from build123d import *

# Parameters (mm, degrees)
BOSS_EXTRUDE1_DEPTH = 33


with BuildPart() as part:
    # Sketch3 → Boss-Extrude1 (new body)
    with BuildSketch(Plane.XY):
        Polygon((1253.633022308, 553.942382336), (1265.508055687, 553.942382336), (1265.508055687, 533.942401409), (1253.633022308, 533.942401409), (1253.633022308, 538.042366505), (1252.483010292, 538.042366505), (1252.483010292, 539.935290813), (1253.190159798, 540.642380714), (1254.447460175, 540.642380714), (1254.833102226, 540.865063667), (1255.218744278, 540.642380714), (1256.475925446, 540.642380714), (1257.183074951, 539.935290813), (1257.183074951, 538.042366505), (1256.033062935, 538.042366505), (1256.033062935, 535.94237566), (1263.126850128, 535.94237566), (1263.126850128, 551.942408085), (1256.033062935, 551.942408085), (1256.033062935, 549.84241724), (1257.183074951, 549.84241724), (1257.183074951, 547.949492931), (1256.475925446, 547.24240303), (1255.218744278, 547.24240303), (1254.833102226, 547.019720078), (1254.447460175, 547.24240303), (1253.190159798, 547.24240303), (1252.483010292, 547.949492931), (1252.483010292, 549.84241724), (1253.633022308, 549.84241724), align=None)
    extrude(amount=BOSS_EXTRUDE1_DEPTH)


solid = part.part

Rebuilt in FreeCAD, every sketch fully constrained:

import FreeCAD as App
import Part
import Sketcher
from FreeCAD import Vector
Q = App.Units.Quantity


def add_polygon(sketch, points):
    """Adds a closed chain of lines whose ends are joined by coincident constraints."""
    first, n = sketch.GeometryCount, len(points)
    for a, b in zip(points, points[1:] + points[:1]):
        sketch.addGeometry(Part.LineSegment(App.Vector(*a, 0), App.Vector(*b, 0)), False)
    for i in range(n):
        sketch.addConstraint(Sketcher.Constraint("Coincident", first + i, 2, first + (i + 1) % n, 1))

doc = App.newDocument("Part")
params = doc.addObject("Spreadsheet::Sheet", "Params")
for row, (alias, value) in enumerate([
    ("pad1_length", "33 mm"),
], start=1):
    params.set(f"A{row}", alias)
    params.set(f"B{row}", "=" + value)
    params.setAlias(f"B{row}", alias)

body = doc.addObject("PartDesign::Body", "Body")

# Sketch on XY plane
sketch1 = body.newObject("Sketcher::SketchObject", "Sketch")
sketch1.AttachmentSupport = (doc.getObject("XY_Plane"), [""])
sketch1.MapMode = "FlatFace"
add_polygon(sketch1, [(1265.508056, 553.942382), (1253.633022, 553.942382), (1253.633022, 549.842417), (1252.48301, 549.842417), (1252.48301, 547.949493), (1253.19016, 547.242403), (1254.44746, 547.242403), (1254.833102, 547.01972), (1255.218744, 547.242403), (1256.475925, 547.242403), (1257.183075, 547.949493), (1257.183075, 549.842417), (1256.033063, 549.842417), (1256.033063, 551.942408), (1263.12685, 551.942408), (1263.12685, 535.942376), (1256.033063, 535.942376), (1256.033063, 538.042367), (1257.183075, 538.042367), (1257.183075, 539.935291), (1256.475925, 540.642381), (1255.218744, 540.642381), (1254.833102, 540.865064), (1254.44746, 540.642381), (1253.19016, 540.642381), (1252.48301, 539.935291), (1252.48301, 538.042367), (1253.633022, 538.042367), (1253.633022, 533.942401), (1265.508056, 533.942401)])  # lines 0-29
sketch1.addConstraint(Sketcher.Constraint("Horizontal", 0))
sketch1.addConstraint(Sketcher.Constraint("Vertical", 1))
sketch1.addConstraint(Sketcher.Constraint("Horizontal", 2))
sketch1.addConstraint(Sketcher.Constraint("Vertical", 3))
sketch1.addConstraint(Sketcher.Constraint("Horizontal", 5))
sketch1.addConstraint(Sketcher.Constraint("Horizontal", 8))
sketch1.addConstraint(Sketcher.Constraint("Vertical", 10))
sketch1.addConstraint(Sketcher.Constraint("Horizontal", 11))
sketch1.addConstraint(Sketcher.Constraint("Vertical", 12))
sketch1.addConstraint(Sketcher.Constraint("Horizontal", 13))
sketch1.addConstraint(Sketcher.Constraint("Vertical", 14))
sketch1.addConstraint(Sketcher.Constraint("Horizontal", 15))
sketch1.addConstraint(Sketcher.Constraint("Vertical", 16))
sketch1.addConstraint(Sketcher.Constraint("Horizontal", 17))
sketch1.addConstraint(Sketcher.Constraint("Vertical", 18))
sketch1.addConstraint(Sketcher.Constraint("Horizontal", 20))
sketch1.addConstraint(Sketcher.Constraint("Horizontal", 23))
sketch1.addConstraint(Sketcher.Constraint("Vertical", 25))
sketch1.addConstraint(Sketcher.Constraint("Horizontal", 26))
sketch1.addConstraint(Sketcher.Constraint("Vertical", 27))
sketch1.addConstraint(Sketcher.Constraint("Horizontal", 28))
sketch1.addConstraint(Sketcher.Constraint("Vertical", 29))
sketch1.addConstraint(Sketcher.Constraint("Parallel", 4, 19))
sketch1.addConstraint(Sketcher.Constraint("Parallel", 6, 21))
sketch1.addConstraint(Sketcher.Constraint("Parallel", 7, 22))
sketch1.addConstraint(Sketcher.Constraint("Parallel", 9, 24))
sketch1.addConstraint(Sketcher.Constraint("Horizontal", 5, 2, 7, 2))
sketch1.addConstraint(Sketcher.Constraint("Horizontal", 3, 2, 9, 2))
sketch1.addConstraint(Sketcher.Constraint("Horizontal", 2, 2, 10, 2))
sketch1.addConstraint(Sketcher.Constraint("Horizontal", 20, 2, 22, 2))
sketch1.addConstraint(Sketcher.Constraint("Horizontal", 18, 2, 24, 2))
sketch1.addConstraint(Sketcher.Constraint("Horizontal", 17, 2, 25, 2))
sketch1.addConstraint(Sketcher.Constraint("Vertical", 12, 2, 15, 2))
sketch1.addConstraint(Sketcher.Constraint("Vertical", 10, 2, 17, 2))
sketch1.addConstraint(Sketcher.Constraint("Vertical", 8, 2, 19, 2))
sketch1.addConstraint(Sketcher.Constraint("Vertical", 7, 2, 20, 2))
sketch1.addConstraint(Sketcher.Constraint("Vertical", 6, 2, 21, 2))
sketch1.addConstraint(Sketcher.Constraint("Vertical", 5, 2, 22, 2))
sketch1.addConstraint(Sketcher.Constraint("Vertical", 4, 2, 23, 2))
sketch1.addConstraint(Sketcher.Constraint("Vertical", 3, 2, 24, 2))
sketch1.addConstraint(Sketcher.Constraint("Vertical", 1, 2, 26, 2))
sketch1.addConstraint(Sketcher.Constraint("Equal", 2, 11))
sketch1.addConstraint(Sketcher.Constraint("Equal", 12, 16))
sketch1.addConstraint(Sketcher.Constraint("Equal", 10, 18))
sketch1.addConstraint(Sketcher.Constraint("Equal", 1, 27))
sketch1.addConstraint(Sketcher.Constraint("DistanceX", 5, 1, 5, 2, Q("1.2573 mm")))
sketch1.addConstraint(Sketcher.Constraint("DistanceX", 8, 1, 8, 2, Q("1.257181 mm")))
sketch1.addConstraint(Sketcher.Constraint("DistanceY", 12, 1, 12, 2, Q("2.099991 mm")))
sketch1.addConstraint(Sketcher.Constraint("DistanceY", 29, 1, 29, 2, Q("19.999981 mm")))
sketch1.addConstraint(Sketcher.Constraint("DistanceY", -1, 1, 27, 2, Q("533.942401 mm")))
sketch1.addConstraint(Sketcher.Constraint("Distance", 4, Q("1.000018 mm")))
sketch1.addConstraint(Sketcher.Constraint("DistanceX", 0, 2, 0, 1, Q("11.875033 mm")))
sketch1.addConstraint(Sketcher.Constraint("DistanceX", 2, 2, 2, 1, Q("1.150012 mm")))
sketch1.addConstraint(Sketcher.Constraint("DistanceX", 13, 1, 13, 2, Q("7.093787 mm")))
sketch1.addConstraint(Sketcher.Constraint("DistanceY", 1, 2, 1, 1, Q("4.099965 mm")))
sketch1.addConstraint(Sketcher.Constraint("DistanceY", 3, 2, 3, 1, Q("1.892924 mm")))
sketch1.addConstraint(Sketcher.Constraint("DistanceX", -1, 1, 2, 2, Q("1252.48301 mm")))
sketch1.addConstraint(Sketcher.Constraint("DistanceX", -1, 1, 4, 2, Q("1253.19016 mm")))
sketch1.addConstraint(Sketcher.Constraint("DistanceY", -1, 1, 6, 2, Q("547.01972 mm")))
sketch1.addConstraint(Sketcher.Constraint("DistanceX", -1, 1, 13, 2, Q("1263.12685 mm")))
pad1 = body.newObject("PartDesign::Pad", "Pad")
pad1.Profile = sketch1
pad1.setExpression("Length", "Params.pad1_length")

doc.recompute()
